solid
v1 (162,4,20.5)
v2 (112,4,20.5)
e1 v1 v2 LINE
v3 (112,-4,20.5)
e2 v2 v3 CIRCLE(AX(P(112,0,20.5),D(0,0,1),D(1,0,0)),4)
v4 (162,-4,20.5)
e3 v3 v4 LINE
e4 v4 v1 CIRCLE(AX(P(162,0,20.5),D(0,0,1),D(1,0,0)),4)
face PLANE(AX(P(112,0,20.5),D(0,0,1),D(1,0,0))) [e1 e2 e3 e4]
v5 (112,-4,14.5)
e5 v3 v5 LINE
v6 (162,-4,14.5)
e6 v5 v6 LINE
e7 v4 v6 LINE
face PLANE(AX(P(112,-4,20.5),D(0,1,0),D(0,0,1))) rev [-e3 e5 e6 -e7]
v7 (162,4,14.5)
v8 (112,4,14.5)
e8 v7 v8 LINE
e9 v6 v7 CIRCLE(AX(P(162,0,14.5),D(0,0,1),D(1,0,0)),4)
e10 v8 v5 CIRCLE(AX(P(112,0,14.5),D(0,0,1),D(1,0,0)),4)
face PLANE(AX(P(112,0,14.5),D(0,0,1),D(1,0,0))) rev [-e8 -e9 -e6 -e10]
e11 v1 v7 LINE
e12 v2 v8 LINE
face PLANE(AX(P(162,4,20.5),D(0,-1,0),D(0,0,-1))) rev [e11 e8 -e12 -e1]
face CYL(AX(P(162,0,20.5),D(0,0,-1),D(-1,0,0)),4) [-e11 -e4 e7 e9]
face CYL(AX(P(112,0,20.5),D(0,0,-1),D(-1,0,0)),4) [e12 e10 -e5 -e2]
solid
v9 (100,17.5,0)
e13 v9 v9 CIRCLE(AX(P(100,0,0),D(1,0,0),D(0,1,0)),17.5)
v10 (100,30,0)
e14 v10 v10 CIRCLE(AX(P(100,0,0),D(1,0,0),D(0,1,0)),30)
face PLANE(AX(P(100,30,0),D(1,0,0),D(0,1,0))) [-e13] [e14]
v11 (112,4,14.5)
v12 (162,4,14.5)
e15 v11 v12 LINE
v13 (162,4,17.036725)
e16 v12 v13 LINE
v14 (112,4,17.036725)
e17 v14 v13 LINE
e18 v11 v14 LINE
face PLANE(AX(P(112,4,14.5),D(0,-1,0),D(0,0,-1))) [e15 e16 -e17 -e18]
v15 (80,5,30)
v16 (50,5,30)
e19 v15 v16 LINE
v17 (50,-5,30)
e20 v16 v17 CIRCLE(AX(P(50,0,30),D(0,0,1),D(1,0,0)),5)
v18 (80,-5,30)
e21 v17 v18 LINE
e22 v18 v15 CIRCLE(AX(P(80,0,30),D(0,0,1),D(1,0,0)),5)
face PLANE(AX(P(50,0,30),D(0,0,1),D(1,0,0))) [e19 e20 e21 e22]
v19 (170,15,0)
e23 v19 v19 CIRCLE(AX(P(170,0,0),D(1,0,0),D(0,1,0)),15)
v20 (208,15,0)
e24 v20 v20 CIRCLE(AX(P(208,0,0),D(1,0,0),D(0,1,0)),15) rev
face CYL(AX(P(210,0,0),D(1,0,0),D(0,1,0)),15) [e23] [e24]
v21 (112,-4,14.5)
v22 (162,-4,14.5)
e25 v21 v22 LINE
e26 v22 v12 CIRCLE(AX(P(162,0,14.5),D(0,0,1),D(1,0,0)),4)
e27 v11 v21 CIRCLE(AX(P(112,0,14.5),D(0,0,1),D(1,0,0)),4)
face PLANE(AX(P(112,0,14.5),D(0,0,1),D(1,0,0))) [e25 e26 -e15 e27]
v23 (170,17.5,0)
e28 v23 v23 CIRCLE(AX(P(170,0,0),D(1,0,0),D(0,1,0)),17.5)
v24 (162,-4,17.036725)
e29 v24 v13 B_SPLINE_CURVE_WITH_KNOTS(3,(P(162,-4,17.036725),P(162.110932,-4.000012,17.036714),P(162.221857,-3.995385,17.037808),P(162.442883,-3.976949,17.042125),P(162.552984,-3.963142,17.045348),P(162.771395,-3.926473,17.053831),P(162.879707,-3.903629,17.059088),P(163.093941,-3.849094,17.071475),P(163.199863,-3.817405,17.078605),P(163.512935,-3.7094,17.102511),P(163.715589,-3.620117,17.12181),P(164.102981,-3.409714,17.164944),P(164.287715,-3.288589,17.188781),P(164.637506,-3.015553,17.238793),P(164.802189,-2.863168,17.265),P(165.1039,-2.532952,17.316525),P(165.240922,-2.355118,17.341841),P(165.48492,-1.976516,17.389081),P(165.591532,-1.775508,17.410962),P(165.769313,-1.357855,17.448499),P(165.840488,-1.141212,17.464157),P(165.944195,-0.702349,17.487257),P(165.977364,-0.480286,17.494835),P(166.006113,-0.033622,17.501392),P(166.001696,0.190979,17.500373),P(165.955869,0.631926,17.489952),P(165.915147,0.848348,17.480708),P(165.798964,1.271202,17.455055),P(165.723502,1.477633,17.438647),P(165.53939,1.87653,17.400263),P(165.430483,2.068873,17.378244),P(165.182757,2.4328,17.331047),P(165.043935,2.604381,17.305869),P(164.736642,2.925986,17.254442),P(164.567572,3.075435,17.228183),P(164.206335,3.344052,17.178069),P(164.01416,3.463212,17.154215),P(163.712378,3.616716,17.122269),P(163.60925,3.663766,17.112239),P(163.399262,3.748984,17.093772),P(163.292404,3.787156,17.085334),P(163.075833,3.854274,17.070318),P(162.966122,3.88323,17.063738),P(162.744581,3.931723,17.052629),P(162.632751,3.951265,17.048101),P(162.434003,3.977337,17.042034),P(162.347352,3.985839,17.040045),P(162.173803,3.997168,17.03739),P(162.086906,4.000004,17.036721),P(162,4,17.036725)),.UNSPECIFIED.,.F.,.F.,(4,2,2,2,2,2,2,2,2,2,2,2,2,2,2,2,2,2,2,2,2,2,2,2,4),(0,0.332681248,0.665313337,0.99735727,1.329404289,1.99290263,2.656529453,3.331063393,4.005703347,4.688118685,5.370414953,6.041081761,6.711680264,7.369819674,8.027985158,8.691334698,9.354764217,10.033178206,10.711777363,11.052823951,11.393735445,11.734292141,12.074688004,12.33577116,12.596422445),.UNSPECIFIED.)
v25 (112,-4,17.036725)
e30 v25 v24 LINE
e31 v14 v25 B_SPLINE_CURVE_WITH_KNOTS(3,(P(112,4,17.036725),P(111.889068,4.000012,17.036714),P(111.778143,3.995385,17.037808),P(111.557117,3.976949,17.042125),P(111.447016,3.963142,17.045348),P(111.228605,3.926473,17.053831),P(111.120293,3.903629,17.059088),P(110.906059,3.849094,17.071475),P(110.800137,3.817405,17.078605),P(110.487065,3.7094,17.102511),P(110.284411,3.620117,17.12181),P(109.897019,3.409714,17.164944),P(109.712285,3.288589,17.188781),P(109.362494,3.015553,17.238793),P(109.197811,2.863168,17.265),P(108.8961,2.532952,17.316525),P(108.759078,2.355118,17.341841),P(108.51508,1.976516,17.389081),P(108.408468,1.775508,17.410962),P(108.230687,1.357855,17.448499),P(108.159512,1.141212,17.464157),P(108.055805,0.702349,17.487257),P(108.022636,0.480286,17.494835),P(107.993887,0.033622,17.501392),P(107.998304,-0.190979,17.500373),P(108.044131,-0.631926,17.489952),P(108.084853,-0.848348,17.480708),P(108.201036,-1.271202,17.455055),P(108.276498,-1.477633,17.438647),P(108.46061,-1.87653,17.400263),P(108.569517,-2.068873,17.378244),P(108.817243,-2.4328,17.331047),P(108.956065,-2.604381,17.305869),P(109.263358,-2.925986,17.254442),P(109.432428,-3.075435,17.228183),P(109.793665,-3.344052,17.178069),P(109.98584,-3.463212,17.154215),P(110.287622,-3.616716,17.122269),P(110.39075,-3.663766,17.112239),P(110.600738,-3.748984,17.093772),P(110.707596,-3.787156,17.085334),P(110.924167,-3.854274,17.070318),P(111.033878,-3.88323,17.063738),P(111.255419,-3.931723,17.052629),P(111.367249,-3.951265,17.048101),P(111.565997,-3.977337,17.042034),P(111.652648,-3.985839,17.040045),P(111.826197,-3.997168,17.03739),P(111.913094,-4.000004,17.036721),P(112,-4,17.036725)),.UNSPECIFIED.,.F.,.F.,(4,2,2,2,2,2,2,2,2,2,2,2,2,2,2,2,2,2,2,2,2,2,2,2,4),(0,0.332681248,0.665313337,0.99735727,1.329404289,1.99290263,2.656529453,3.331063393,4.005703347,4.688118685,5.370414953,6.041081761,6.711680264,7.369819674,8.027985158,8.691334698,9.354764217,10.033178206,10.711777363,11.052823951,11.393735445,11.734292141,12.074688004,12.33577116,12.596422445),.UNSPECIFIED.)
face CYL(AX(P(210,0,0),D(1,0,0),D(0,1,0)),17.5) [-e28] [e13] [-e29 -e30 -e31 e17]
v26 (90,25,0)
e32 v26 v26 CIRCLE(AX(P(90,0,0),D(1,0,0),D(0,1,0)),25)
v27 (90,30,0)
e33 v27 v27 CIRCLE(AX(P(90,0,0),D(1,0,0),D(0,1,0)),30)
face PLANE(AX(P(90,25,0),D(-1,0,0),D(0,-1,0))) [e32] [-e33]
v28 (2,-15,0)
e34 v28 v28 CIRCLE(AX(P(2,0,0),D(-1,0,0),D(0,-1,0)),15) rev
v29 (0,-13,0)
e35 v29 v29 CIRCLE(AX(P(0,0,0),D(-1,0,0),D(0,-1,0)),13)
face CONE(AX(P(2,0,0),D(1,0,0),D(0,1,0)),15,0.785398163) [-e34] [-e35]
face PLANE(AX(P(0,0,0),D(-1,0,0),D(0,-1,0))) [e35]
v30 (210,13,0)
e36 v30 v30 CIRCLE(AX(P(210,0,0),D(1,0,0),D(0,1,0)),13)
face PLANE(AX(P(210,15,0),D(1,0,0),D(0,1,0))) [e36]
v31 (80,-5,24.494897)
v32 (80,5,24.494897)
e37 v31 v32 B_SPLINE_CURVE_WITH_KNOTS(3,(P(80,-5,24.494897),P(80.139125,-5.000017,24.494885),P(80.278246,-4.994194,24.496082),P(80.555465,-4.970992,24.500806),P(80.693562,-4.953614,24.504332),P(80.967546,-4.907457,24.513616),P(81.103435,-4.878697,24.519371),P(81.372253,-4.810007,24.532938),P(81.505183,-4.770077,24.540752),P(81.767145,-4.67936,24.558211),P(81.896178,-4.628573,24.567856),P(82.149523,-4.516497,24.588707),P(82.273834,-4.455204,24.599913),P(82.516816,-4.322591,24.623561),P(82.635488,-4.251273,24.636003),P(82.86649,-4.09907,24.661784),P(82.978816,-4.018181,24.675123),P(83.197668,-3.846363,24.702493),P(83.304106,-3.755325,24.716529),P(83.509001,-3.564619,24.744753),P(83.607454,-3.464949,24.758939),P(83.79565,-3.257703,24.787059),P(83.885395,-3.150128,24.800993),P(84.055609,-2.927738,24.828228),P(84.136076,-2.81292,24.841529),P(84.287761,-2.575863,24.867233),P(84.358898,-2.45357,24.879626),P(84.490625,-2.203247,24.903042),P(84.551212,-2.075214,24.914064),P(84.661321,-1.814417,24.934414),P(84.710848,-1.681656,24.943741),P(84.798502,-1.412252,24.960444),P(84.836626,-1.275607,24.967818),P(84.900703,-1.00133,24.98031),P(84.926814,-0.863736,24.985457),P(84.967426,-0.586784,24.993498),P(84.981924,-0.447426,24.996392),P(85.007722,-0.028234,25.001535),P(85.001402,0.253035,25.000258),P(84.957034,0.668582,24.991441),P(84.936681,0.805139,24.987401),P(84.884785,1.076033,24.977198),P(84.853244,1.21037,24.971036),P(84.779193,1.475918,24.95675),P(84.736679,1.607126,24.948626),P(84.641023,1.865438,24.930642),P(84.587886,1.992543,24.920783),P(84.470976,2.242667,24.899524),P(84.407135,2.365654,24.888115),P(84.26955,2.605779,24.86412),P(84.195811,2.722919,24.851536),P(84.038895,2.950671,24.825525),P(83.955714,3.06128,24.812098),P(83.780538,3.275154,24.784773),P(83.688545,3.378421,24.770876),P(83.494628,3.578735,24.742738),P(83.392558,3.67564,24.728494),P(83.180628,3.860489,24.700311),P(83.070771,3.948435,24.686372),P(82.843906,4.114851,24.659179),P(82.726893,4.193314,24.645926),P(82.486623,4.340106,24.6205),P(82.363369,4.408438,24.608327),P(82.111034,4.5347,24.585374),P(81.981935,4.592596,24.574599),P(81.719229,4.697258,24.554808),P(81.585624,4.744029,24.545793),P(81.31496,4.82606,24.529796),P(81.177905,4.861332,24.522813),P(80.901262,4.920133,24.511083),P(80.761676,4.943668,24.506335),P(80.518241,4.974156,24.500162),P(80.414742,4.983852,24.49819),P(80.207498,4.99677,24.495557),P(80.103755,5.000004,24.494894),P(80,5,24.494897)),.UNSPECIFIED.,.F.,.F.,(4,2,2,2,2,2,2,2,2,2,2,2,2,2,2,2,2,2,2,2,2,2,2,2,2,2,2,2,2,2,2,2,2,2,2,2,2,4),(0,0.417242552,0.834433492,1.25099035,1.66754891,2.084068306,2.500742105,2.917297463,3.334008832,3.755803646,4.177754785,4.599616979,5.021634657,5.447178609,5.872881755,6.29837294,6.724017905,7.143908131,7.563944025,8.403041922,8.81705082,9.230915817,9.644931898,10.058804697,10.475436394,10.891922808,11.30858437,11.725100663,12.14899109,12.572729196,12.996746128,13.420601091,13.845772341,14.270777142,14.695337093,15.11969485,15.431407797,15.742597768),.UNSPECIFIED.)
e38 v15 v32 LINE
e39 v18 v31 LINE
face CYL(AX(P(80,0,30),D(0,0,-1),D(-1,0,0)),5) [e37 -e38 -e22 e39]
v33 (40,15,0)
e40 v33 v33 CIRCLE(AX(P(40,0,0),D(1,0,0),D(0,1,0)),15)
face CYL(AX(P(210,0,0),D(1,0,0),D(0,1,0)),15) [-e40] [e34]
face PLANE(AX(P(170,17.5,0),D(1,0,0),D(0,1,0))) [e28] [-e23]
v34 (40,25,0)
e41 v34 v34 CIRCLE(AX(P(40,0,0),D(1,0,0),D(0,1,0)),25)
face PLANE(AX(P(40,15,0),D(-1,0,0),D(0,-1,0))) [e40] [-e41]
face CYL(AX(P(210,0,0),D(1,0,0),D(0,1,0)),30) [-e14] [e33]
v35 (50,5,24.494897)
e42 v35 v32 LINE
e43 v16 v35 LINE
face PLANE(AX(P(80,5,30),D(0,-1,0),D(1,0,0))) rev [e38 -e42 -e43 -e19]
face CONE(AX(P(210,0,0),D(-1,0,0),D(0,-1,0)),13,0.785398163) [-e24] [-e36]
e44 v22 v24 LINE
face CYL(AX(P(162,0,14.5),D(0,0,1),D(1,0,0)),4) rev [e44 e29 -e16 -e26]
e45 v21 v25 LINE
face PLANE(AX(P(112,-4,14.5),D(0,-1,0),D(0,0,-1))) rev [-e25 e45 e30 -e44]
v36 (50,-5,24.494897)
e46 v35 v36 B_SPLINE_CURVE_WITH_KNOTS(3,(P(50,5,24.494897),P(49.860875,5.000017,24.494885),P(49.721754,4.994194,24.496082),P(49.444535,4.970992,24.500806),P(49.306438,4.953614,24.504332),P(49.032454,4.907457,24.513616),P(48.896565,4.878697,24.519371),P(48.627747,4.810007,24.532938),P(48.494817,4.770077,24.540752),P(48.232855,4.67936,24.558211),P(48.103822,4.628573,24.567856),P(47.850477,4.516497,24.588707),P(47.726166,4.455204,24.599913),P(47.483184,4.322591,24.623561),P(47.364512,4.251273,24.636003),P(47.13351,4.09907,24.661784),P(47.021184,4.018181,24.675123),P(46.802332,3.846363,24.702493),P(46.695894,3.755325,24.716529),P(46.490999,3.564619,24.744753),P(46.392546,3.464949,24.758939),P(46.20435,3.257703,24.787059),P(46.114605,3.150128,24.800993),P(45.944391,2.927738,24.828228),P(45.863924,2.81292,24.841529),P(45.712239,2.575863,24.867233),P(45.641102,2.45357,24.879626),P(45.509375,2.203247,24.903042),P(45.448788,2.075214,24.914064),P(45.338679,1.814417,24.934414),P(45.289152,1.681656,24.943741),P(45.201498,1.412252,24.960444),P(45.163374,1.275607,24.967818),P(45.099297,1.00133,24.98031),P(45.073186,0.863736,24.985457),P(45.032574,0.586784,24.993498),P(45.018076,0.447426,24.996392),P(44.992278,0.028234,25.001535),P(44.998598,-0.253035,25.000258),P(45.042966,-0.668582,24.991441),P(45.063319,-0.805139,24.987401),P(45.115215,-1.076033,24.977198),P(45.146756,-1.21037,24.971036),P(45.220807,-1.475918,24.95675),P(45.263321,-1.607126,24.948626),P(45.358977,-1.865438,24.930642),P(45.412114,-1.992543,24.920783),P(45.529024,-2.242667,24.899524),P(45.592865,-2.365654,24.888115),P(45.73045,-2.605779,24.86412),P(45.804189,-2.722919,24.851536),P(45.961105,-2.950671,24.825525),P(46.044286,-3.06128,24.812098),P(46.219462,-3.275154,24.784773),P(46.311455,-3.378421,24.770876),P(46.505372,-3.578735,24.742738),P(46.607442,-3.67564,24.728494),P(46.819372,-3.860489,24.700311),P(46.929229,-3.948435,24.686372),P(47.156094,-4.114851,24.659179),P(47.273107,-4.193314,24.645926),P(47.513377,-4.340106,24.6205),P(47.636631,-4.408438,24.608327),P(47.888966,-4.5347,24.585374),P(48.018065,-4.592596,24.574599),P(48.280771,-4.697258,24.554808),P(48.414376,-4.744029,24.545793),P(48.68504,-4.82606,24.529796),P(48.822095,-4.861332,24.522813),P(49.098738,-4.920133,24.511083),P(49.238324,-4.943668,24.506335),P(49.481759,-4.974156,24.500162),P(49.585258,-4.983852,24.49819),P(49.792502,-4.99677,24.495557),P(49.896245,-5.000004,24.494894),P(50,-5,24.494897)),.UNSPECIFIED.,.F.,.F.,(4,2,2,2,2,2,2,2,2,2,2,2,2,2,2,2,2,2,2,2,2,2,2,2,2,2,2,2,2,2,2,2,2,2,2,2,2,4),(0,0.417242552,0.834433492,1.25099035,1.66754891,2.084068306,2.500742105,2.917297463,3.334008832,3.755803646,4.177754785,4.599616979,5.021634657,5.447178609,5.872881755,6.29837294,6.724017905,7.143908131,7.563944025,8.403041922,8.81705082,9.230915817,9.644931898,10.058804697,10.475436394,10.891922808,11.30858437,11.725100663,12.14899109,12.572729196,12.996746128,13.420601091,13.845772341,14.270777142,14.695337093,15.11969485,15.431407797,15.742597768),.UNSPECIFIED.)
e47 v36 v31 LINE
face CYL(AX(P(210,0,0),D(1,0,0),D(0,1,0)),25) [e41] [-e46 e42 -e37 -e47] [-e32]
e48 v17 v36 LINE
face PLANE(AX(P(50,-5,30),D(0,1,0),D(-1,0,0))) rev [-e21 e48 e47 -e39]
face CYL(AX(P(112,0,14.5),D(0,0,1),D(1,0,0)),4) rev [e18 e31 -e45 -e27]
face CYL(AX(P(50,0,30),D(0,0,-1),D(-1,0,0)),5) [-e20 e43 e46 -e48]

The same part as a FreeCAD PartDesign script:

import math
import FreeCAD as App
import Part
import Sketcher

V = App.Vector


def edges_at(feature, points):
    """Names of the edges that pass closest to the given points."""
    edges = feature.Shape.Edges
    near = lambda p: min(range(len(edges)), key=lambda i: edges[i].distToShape(Part.Vertex(*p))[0])
    return sorted({f"Edge{near(p) + 1}" for p in points})

doc = App.newDocument("Part")
body = doc.addObject("PartDesign::Body", "Body")

# Sketch on XY plane
sketch1 = doc.addObject("Sketcher::SketchObject", "Sketch")
body.addObject(sketch1)
sketch1.AttachmentSupport = (doc.XY_Plane, [""])
sketch1.MapMode = "FlatFace"
sketch1.addGeometry([
    Part.LineSegment(V(0, 15, 0), V(0, 0, 0)),  # 0
    Part.LineSegment(V(0, 0, 0), V(210, 0, 0)),  # 1
    Part.LineSegment(V(210, 0, 0), V(210, 15, 0)),  # 2
    Part.LineSegment(V(210, 15, 0), V(170, 15, 0)),  # 3
    Part.LineSegment(V(170, 15, 0), V(170, 17.5, 0)),  # 4
    Part.LineSegment(V(170, 17.5, 0), V(100, 17.5, 0)),  # 5
    Part.LineSegment(V(100, 17.5, 0), V(100, 30, 0)),  # 6
    Part.LineSegment(V(100, 30, 0), V(90, 30, 0)),  # 7
    Part.LineSegment(V(90, 30, 0), V(90, 25, 0)),  # 8
    Part.LineSegment(V(90, 25, 0), V(40, 25, 0)),  # 9
    Part.LineSegment(V(40, 25, 0), V(40, 15, 0)),  # 10
    Part.LineSegment(V(40, 15, 0), V(0, 15, 0)),  # 11
], False)
sketch1.addConstraint([
    Sketcher.Constraint("Coincident", 0, 2, 1, 1),
    Sketcher.Constraint("Coincident", 1, 2, 2, 1),
    Sketcher.Constraint("Coincident", 2, 2, 3, 1),
    Sketcher.Constraint("Coincident", 3, 2, 4, 1),
    Sketcher.Constraint("Coincident", 4, 2, 5, 1),
    Sketcher.Constraint("Coincident", 5, 2, 6, 1),
    Sketcher.Constraint("Coincident", 6, 2, 7, 1),
    Sketcher.Constraint("Coincident", 7, 2, 8, 1),
    Sketcher.Constraint("Coincident", 8, 2, 9, 1),
    Sketcher.Constraint("Coincident", 9, 2, 10, 1),
    Sketcher.Constraint("Coincident", 10, 2, 11, 1),
    Sketcher.Constraint("Coincident", 11, 2, 0, 1),
    Sketcher.Constraint("Vertical", 0),
    Sketcher.Constraint("Horizontal", 1),
    Sketcher.Constraint("Vertical", 2),
    Sketcher.Constraint("Horizontal", 3),
    Sketcher.Constraint("Vertical", 4),
    Sketcher.Constraint("Horizontal", 5),
    Sketcher.Constraint("Vertical", 6),
    Sketcher.Constraint("Horizontal", 7),
    Sketcher.Constraint("Vertical", 8),
    Sketcher.Constraint("Horizontal", 9),
    Sketcher.Constraint("Vertical", 10),
    Sketcher.Constraint("Horizontal", 11),
    Sketcher.Constraint("Coincident", 0, 2, -1, 1),
    Sketcher.Constraint("Horizontal", 3, 2, 10, 2),
    Sketcher.Constraint("Equal", 3, 11),
    Sketcher.Constraint("Equal", 7, 10),
    Sketcher.Constraint("DistanceX", 1, 1, 1, 2, 210.0),
    Sketcher.Constraint("DistanceX", 3, 2, 3, 1, 40.0),
    Sketcher.Constraint("DistanceX", 5, 2, 5, 1, 70.0),
    Sketcher.Constraint("DistanceX", 7, 2, 7, 1, 10.0),
    Sketcher.Constraint("DistanceY", 0, 2, 0, 1, 15.0),
    Sketcher.Constraint("DistanceY", 8, 2, 8, 1, 5.0),
    Sketcher.Constraint("DistanceY", 4, 1, 4, 2, 2.5),
])
revolution = doc.addObject("PartDesign::Revolution", "Revolution")
body.addObject(revolution)
revolution.Profile = sketch1
revolution.ReferenceAxis = (sketch1, ["H_Axis"])
revolution.Angle = 360
doc.recompute()

chamfer = doc.addObject("PartDesign::Chamfer", "Chamfer")
body.addObject(chamfer)
chamfer.Base = (revolution, edges_at(revolution, [(0, -15, 0)]))
chamfer.Size = 2
doc.recompute()

chamfer2 = doc.addObject("PartDesign::Chamfer", "Chamfer001")
body.addObject(chamfer2)
chamfer2.Base = (chamfer, edges_at(chamfer, [(210, -15, 0)]))
chamfer2.Size = 2

# Sketch on XY plane
sketch2 = doc.addObject("Sketcher::SketchObject", "Sketch001")
body.addObject(sketch2)
sketch2.AttachmentSupport = (doc.XY_Plane, [""])
sketch2.MapMode = "FlatFace"
sketch2.AttachmentOffset = App.Placement(V(0, 0, 17.5), App.Rotation())
sketch2.addGeometry([
    Part.LineSegment(V(112, -4, 0), V(162, -4, 0)),
    Part.ArcOfCircle(Part.Circle(V(162, 0, 0), V(0, 0, 1), 4), math.radians(-90), math.radians(90)),
    Part.LineSegment(V(162, 4, 0), V(112, 4, 0)),
    Part.ArcOfCircle(Part.Circle(V(112, 0, 0), V(0, 0, 1), 4), math.radians(90), math.radians(270)),
], False)
sketch2.addConstraint([
    Sketcher.Constraint("Tangent", 0, 2, 1, 1),
    Sketcher.Constraint("Tangent", 1, 2, 2, 1),
    Sketcher.Constraint("Tangent", 2, 2, 3, 1),
    Sketcher.Constraint("Tangent", 3, 2, 0, 1),
    Sketcher.Constraint("Horizontal", 0),
    Sketcher.Constraint("Horizontal", 2),
    Sketcher.Constraint("PointOnObject", 1, 3, -1),
    Sketcher.Constraint("Radius", 1, 4.0),
    Sketcher.Constraint("DistanceX", 0, 1, 0, 2, 50.0),
    Sketcher.Constraint("DistanceX", -1, 1, 1, 3, 162.0),
])
pocket1 = doc.addObject("PartDesign::Pocket", "Pocket")
body.addObject(pocket1)
pocket1.Profile = sketch2
pocket1.Length = 3

# Sketch on XY plane
sketch3 = doc.addObject("Sketcher::SketchObject", "Sketch002")
body.addObject(sketch3)
sketch3.AttachmentSupport = (doc.XY_Plane, [""])
sketch3.MapMode = "FlatFace"
sketch3.AttachmentOffset = App.Placement(V(0, 0, 25), App.Rotation())
sketch3.addGeometry([
    Part.LineSegment(V(50, -5, 0), V(80, -5, 0)),
    Part.ArcOfCircle(Part.Circle(V(80, 0, 0), V(0, 0, 1), 5), math.radians(-90), math.radians(90)),
    Part.LineSegment(V(80, 5, 0), V(50, 5, 0)),
    Part.ArcOfCircle(Part.Circle(V(50, 0, 0), V(0, 0, 1), 5), math.radians(90), math.radians(270)),
], False)
sketch3.addConstraint([
    Sketcher.Constraint("Tangent", 0, 2, 1, 1),
    Sketcher.Constraint("Tangent", 1, 2, 2, 1),
    Sketcher.Constraint("Tangent", 2, 2, 3, 1),
    Sketcher.Constraint("Tangent", 3, 2, 0, 1),
    Sketcher.Constraint("Horizontal", 0),
    Sketcher.Constraint("Horizontal", 2),
    Sketcher.Constraint("PointOnObject", 1, 3, -1),
    Sketcher.Constraint("Radius", 1, 5.0),
    Sketcher.Constraint("DistanceX", 0, 1, 0, 2, 30.0),
    Sketcher.Constraint("DistanceX", -1, 1, 1, 3, 80.0),
])
pocket2 = doc.addObject("PartDesign::Pocket", "Pocket001")
body.addObject(pocket2)
pocket2.Profile = sketch3
pocket2.Length = 5

# Sketch on XY plane
sketch4 = doc.addObject("Sketcher::SketchObject", "Sketch003")
body.addObject(sketch4)
sketch4.AttachmentSupport = (doc.XY_Plane, [""])
sketch4.MapMode = "FlatFace"
sketch4.AttachmentOffset = App.Placement(V(0, 0, 20), App.Rotation())
sketch4.addGeometry([
    Part.LineSegment(V(50, -5, 0), V(80, -5, 0)),
    Part.ArcOfCircle(Part.Circle(V(80, 0, 0), V(0, 0, 1), 5), math.radians(-90), math.radians(90)),
    Part.LineSegment(V(80, 5, 0), V(50, 5, 0)),
    Part.ArcOfCircle(Part.Circle(V(50, 0, 0), V(0, 0, 1), 5), math.radians(90), math.radians(270)),
], False)
sketch4.addConstraint([
    Sketcher.Constraint("Tangent", 0, 2, 1, 1),
    Sketcher.Constraint("Tangent", 1, 2, 2, 1),
    Sketcher.Constraint("Tangent", 2, 2, 3, 1),
    Sketcher.Constraint("Tangent", 3, 2, 0, 1),
    Sketcher.Constraint("Horizontal", 0),
    Sketcher.Constraint("Horizontal", 2),
    Sketcher.Constraint("PointOnObject", 1, 3, -1),
    Sketcher.Constraint("Radius", 1, 5.0),
    Sketcher.Constraint("DistanceX", 0, 1, 0, 2, 30.0),
    Sketcher.Constraint("DistanceX", -1, 1, 1, 3, 80.0),
])
pad1 = doc.addObject("PartDesign::Pad", "Pad")
body.addObject(pad1)
pad1.Profile = sketch4
pad1.Length = 10
body2 = doc.addObject("PartDesign::Body", "Body001")

# Sketch on XY plane
sketch5 = doc.addObject("Sketcher::SketchObject", "Sketch004")
body2.addObject(sketch5)
sketch5.AttachmentSupport = (doc.getObject("XY_Plane001"), [""])
sketch5.MapMode = "FlatFace"
sketch5.AttachmentOffset = App.Placement(V(0, 0, 14.5), App.Rotation())
sketch5.addGeometry([
    Part.LineSegment(V(112, -4, 0), V(162, -4, 0)),
    Part.ArcOfCircle(Part.Circle(V(162, 0, 0), V(0, 0, 1), 4), math.radians(-90), math.radians(90)),
    Part.LineSegment(V(162, 4, 0), V(112, 4, 0)),
    Part.ArcOfCircle(Part.Circle(V(112, 0, 0), V(0, 0, 1), 4), math.radians(90), math.radians(270)),
], False)
sketch5.addConstraint([
    Sketcher.Constraint("Tangent", 0, 2, 1, 1),
    Sketcher.Constraint("Tangent", 1, 2, 2, 1),
    Sketcher.Constraint("Tangent", 2, 2, 3, 1),
    Sketcher.Constraint("Tangent", 3, 2, 0, 1),
    Sketcher.Constraint("Horizontal", 0),
    Sketcher.Constraint("Horizontal", 2),
    Sketcher.Constraint("PointOnObject", 1, 3, -1),
    Sketcher.Constraint("Radius", 1, 4.0),
    Sketcher.Constraint("DistanceX", 0, 1, 0, 2, 50.0),
    Sketcher.Constraint("DistanceX", -1, 1, 1, 3, 162.0),
])
pad2 = doc.addObject("PartDesign::Pad", "Pad001")
body2.addObject(pad2)
pad2.Profile = sketch5
pad2.Length = 6

doc.recompute()
